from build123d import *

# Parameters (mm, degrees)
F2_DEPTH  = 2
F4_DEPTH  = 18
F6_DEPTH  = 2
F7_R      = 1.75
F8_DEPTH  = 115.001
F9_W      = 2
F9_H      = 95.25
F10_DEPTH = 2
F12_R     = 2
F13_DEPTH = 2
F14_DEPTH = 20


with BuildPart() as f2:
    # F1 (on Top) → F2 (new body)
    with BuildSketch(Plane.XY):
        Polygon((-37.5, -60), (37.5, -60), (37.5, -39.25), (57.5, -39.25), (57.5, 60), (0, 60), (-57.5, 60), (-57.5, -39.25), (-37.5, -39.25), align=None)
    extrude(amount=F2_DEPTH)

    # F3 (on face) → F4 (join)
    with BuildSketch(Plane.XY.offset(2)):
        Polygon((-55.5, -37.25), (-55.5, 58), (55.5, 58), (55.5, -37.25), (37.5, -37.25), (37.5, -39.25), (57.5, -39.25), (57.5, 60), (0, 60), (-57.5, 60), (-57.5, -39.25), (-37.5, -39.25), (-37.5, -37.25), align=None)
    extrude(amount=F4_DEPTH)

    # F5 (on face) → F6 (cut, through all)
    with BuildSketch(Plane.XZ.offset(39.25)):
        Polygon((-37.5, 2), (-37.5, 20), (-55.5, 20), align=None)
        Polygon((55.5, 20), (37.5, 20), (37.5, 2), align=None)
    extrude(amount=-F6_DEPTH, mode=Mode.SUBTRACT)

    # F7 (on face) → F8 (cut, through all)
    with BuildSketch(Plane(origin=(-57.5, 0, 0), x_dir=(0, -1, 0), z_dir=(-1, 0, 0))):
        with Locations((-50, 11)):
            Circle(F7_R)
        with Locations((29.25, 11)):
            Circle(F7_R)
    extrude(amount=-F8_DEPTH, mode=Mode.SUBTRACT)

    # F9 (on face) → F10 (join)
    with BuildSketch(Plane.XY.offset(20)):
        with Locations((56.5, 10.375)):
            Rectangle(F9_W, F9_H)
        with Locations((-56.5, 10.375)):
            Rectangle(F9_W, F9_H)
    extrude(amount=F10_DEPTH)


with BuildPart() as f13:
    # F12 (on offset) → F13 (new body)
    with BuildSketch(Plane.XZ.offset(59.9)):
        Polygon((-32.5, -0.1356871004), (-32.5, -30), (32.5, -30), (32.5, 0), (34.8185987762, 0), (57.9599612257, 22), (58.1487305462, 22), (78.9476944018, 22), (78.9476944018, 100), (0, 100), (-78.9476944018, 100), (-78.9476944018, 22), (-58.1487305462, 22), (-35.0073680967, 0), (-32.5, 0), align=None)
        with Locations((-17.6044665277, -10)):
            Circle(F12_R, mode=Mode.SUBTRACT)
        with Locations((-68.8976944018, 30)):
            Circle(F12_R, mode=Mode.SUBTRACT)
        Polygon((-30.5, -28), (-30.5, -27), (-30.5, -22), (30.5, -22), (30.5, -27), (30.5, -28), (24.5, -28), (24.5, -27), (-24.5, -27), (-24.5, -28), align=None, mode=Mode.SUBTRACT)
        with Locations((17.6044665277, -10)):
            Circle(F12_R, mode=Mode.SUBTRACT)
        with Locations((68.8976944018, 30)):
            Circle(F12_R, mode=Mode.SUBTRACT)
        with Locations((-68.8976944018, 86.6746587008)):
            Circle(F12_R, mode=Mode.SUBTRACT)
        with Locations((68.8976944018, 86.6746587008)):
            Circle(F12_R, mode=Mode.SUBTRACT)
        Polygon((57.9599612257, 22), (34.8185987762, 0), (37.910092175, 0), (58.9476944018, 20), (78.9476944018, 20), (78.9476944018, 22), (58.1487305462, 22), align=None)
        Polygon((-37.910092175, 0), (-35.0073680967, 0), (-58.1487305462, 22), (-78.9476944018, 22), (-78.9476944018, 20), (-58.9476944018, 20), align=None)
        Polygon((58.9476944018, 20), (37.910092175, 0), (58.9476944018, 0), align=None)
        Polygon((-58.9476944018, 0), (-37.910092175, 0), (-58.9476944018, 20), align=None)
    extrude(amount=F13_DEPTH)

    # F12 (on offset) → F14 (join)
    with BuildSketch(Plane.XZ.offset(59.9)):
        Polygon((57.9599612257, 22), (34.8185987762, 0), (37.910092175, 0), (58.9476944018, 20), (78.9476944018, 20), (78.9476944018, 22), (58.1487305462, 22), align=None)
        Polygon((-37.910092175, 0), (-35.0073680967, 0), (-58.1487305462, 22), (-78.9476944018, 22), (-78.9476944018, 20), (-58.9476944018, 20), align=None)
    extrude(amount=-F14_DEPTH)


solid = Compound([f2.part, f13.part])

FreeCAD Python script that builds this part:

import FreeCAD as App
import Part
import Sketcher
from FreeCAD import Vector
Q = App.Units.Quantity

doc = App.newDocument("Part")
params = doc.addObject("Spreadsheet::Sheet", "Params")
for row, (alias, value) in enumerate([
    ("sketch1_width", "75 mm"),
    ("sketch1_width2", "20 mm"),
    ("sketch1_height", "20.75 mm"),
    ("pad1_length", "2 mm"),
    ("sketch2_width", "111 mm"),
    ("sketch2_width2", "18 mm"),
    ("sketch2_width3", "20 mm"),
    ("sketch2_height", "2 mm"),
    ("sketch2_height2", "95.25 mm"),
    ("pad2_length", "18 mm"),
    ("sketch3_width", "18 mm"),
    ("pocket1_length", "2 mm"),
    ("sketch4_diameter", "3.5 mm"),
    ("sketch5_width", "2 mm"),
    ("sketch5_height", "95.25 mm"),
    ("pad3_length", "2 mm"),
    ("sketch6_diameter", "4 mm"),
    ("sketch6_width", "65 mm"),
    ("sketch6_width2", "20 mm"),
    ("sketch6_width3", "6 mm"),
    ("sketch6_width4", "61 mm"),
    ("pad4_length", "2 mm"),
    ("sketch7_width", "20 mm"),
    ("sketch7_height", "2 mm"),
    ("pad5_length", "20 mm"),
], start=1):
    params.set(f"A{row}", alias)
    params.set(f"B{row}", "=" + value)
    params.setAlias(f"B{row}", alias)

body = doc.addObject("PartDesign::Body", "Body")

# Sketch on XY plane
sketch1 = body.newObject("Sketcher::SketchObject", "Sketch")
sketch1.AttachmentSupport = (doc.getObject("XY_Plane"), [""])
sketch1.MapMode = "FlatFace"
sketch1.addGeometry([
    Part.LineSegment(Vector(-38, -60, 0), Vector(38, -60, 0)),  # 0
    Part.LineSegment(Vector(38, -60, 0), Vector(38, -39, 0)),  # 1
    Part.LineSegment(Vector(38, -39, 0), Vector(58, -39, 0)),  # 2
    Part.LineSegment(Vector(58, -39, 0), Vector(58, 60, 0)),  # 3
    Part.LineSegment(Vector(58, 60, 0), Vector(-58, 60, 0)),  # 4
    Part.LineSegment(Vector(-58, 60, 0), Vector(-58, -39, 0)),  # 5
    Part.LineSegment(Vector(-58, -39, 0), Vector(-38, -39, 0)),  # 6
    Part.LineSegment(Vector(-38, -39, 0), Vector(-38, -60, 0)),  # 7
], False)
sketch1.addConstraint([
    Sketcher.Constraint("Coincident", 0, 2, 1, 1),
    Sketcher.Constraint("Coincident", 1, 2, 2, 1),
    Sketcher.Constraint("Coincident", 2, 2, 3, 1),
    Sketcher.Constraint("Coincident", 3, 2, 4, 1),
    Sketcher.Constraint("Coincident", 4, 2, 5, 1),
    Sketcher.Constraint("Coincident", 5, 2, 6, 1),
    Sketcher.Constraint("Coincident", 6, 2, 7, 1),
    Sketcher.Constraint("Coincident", 7, 2, 0, 1),
    Sketcher.Constraint("Horizontal", 0),
    Sketcher.Constraint("Vertical", 1),
    Sketcher.Constraint("Horizontal", 2),
    Sketcher.Constraint("Vertical", 3),
    Sketcher.Constraint("Horizontal", 4),
    Sketcher.Constraint("Vertical", 5),
    Sketcher.Constraint("Horizontal", 6),
    Sketcher.Constraint("Vertical", 7),
    Sketcher.Constraint("Symmetric", 2, 2, 5, 2, -2),
    Sketcher.Constraint("Equal", 2, 6),
    Sketcher.Constraint("DistanceX", 0, 1, 0, 2, Q("75 mm")),
    Sketcher.Constraint("DistanceX", 2, 1, 2, 2, Q("20 mm")),
    Sketcher.Constraint("DistanceY", 0, 2, -1, 1, Q("60 mm")),
    Sketcher.Constraint("DistanceY", -1, 1, 3, 2, Q("60 mm")),
    Sketcher.Constraint("DistanceY", 1, 1, 1, 2, Q("20.75 mm")),
])
sketch1.setExpression("Constraints[18]", "Params.sketch1_width")
sketch1.setExpression("Constraints[19]", "Params.sketch1_width2")
sketch1.setExpression("Constraints[22]", "Params.sketch1_height")
pad1 = body.newObject("PartDesign::Pad", "Pad")
pad1.Profile = sketch1
pad1.setExpression("Length", "Params.pad1_length")

# Sketch on XY plane
sketch2 = body.newObject("Sketcher::SketchObject", "Sketch001")
sketch2.AttachmentSupport = (doc.getObject("XY_Plane"), [""])
sketch2.MapMode = "FlatFace"
sketch2.AttachmentOffset = App.Placement(Vector(0, 0, 2), App.Rotation())
sketch2.addGeometry([
    Part.LineSegment(Vector(-55.5, -37.2, 0), Vector(-55.5, 58, 0)),  # 0
    Part.LineSegment(Vector(-55.5, 58, 0), Vector(55.5, 58, 0)),  # 1
    Part.LineSegment(Vector(55.5, 58, 0), Vector(55.5, -37.2, 0)),  # 2
    Part.LineSegment(Vector(55.5, -37.2, 0), Vector(37.5, -37.2, 0)),  # 3
    Part.LineSegment(Vector(37.5, -37.2, 0), Vector(37.5, -39.2, 0)),  # 4
    Part.LineSegment(Vector(37.5, -39.2, 0), Vector(57.5, -39.2, 0)),  # 5
    Part.LineSegment(Vector(57.5, -39.2, 0), Vector(57.5, 60, 0)),  # 6
    Part.LineSegment(Vector(57.5, 60, 0), Vector(-57.5, 60, 0)),  # 7
    Part.LineSegment(Vector(-57.5, 60, 0), Vector(-57.5, -39.2, 0)),  # 8
    Part.LineSegment(Vector(-57.5, -39.2, 0), Vector(-37.5, -39.2, 0)),  # 9
    Part.LineSegment(Vector(-37.5, -39.2, 0), Vector(-37.5, -37.2, 0)),  # 10
    Part.LineSegment(Vector(-37.5, -37.2, 0), Vector(-55.5, -37.2, 0)),  # 11
], False)
sketch2.addConstraint([
    Sketcher.Constraint("Coincident", 0, 2, 1, 1),
    Sketcher.Constraint("Coincident", 1, 2, 2, 1),
    Sketcher.Constraint("Coincident", 2, 2, 3, 1),
    Sketcher.Constraint("Coincident", 3, 2, 4, 1),
    Sketcher.Constraint("Coincident", 4, 2, 5, 1),
    Sketcher.Constraint("Coincident", 5, 2, 6, 1),
    Sketcher.Constraint("Coincident", 6, 2, 7, 1),
    Sketcher.Constraint("Coincident", 7, 2, 8, 1),
    Sketcher.Constraint("Coincident", 8, 2, 9, 1),
    Sketcher.Constraint("Coincident", 9, 2, 10, 1),
    Sketcher.Constraint("Coincident", 10, 2, 11, 1),
    Sketcher.Constraint("Coincident", 11, 2, 0, 1),
    Sketcher.Constraint("Vertical", 0),
    Sketcher.Constraint("Horizontal", 1),
    Sketcher.Constraint("Vertical", 2),
    Sketcher.Constraint("Horizontal", 3),
    Sketcher.Constraint("Vertical", 4),
    Sketcher.Constraint("Horizontal", 5),
    Sketcher.Constraint("Vertical", 6),
    Sketcher.Constraint("Horizontal", 7),
    Sketcher.Constraint("Vertical", 8),
    Sketcher.Constraint("Horizontal", 9),
    Sketcher.Constraint("Vertical", 10),
    Sketcher.Constraint("Horizontal", 11),
    Sketcher.Constraint("Symmetric", 5, 2, 8, 2, -2),
    Sketcher.Constraint("Symmetric", 3, 2, 10, 2, -2),
    Sketcher.Constraint("Equal", 3, 11),
    Sketcher.Constraint("DistanceX", 1, 1, 1, 2, Q("111 mm")),
    Sketcher.Constraint("DistanceX", 3, 2, 3, 1, Q("18 mm")),
    Sketcher.Constraint("DistanceX", 5, 1, 5, 2, Q("20 mm")),
    Sketcher.Constraint("DistanceY", 4, 2, 4, 1, Q("2 mm")),
    Sketcher.Constraint("DistanceY", -1, 1, 0, 2, Q("58 mm")),
    Sketcher.Constraint("DistanceY", -1, 1, 6, 2, Q("60 mm")),
    Sketcher.Constraint("DistanceY", 0, 1, 0, 2, Q("95.25 mm")),
])
sketch2.setExpression("Constraints[27]", "Params.sketch2_width")
sketch2.setExpression("Constraints[28]", "Params.sketch2_width2")
sketch2.setExpression("Constraints[29]", "Params.sketch2_width3")
sketch2.setExpression("Constraints[30]", "Params.sketch2_height")
sketch2.setExpression("Constraints[33]", "Params.sketch2_height2")
pad2 = body.newObject("PartDesign::Pad", "Pad001")
pad2.Profile = sketch2
pad2.setExpression("Length", "Params.pad2_length")

# Sketch on XZ plane
sketch3 = body.newObject("Sketcher::SketchObject", "Sketch002")
sketch3.AttachmentSupport = (doc.getObject("XZ_Plane"), [""])
sketch3.MapMode = "FlatFace"
sketch3.AttachmentOffset = App.Placement(Vector(0, 0, 39.25), App.Rotation())
sketch3.addGeometry([
    Part.LineSegment(Vector(-38, 2, 0), Vector(-38, 20, 0)),  # 0
    Part.LineSegment(Vector(-38, 20, 0), Vector(-56, 20, 0)),  # 1
    Part.LineSegment(Vector(-56, 20, 0), Vector(-38, 2, 0)),  # 2
    Part.LineSegment(Vector(56, 20, 0), Vector(38, 20, 0)),  # 3
    Part.LineSegment(Vector(38, 20, 0), Vector(38, 2, 0)),  # 4
    Part.LineSegment(Vector(38, 2, 0), Vector(56, 20, 0)),  # 5
], False)
sketch3.addConstraint([
    Sketcher.Constraint("Coincident", 0, 2, 1, 1),
    Sketcher.Constraint("Coincident", 1, 2, 2, 1),
    Sketcher.Constraint("Coincident", 2, 2, 0, 1),
    Sketcher.Constraint("Coincident", 3, 2, 4, 1),
    Sketcher.Constraint("Coincident", 4, 2, 5, 1),
    Sketcher.Constraint("Coincident", 5, 2, 3, 1),
    Sketcher.Constraint("Vertical", 0),
    Sketcher.Constraint("Horizontal", 1),
    Sketcher.Constraint("Horizontal", 3),
    Sketcher.Constraint("Vertical", 4),
    Sketcher.Constraint("Symmetric", 0, 2, 3, 2, -2),
    Sketcher.Constraint("Perpendicular", 2, 5),
    Sketcher.Constraint("Horizontal", 2, 2, 4, 2),
    Sketcher.Constraint("Equal", 1, 3),
    Sketcher.Constraint("DistanceX", 1, 2, 1, 1, Q("18 mm")),
    Sketcher.Constraint("DistanceY", -1, 1, 0, 2, Q("20 mm")),
    Sketcher.Constraint("DistanceX", 0, 2, 3, 2, Q("75 mm")),
])
sketch3.setExpression("Constraints[14]", "Params.sketch3_width")
pocket1 = body.newObject("PartDesign::Pocket", "Pocket")
pocket1.Profile = sketch3
pocket1.setExpression("Length", "Params.pocket1_length")

# Sketch on YZ plane
sketch4 = body.newObject("Sketcher::SketchObject", "Sketch003")
sketch4.AttachmentSupport = (doc.getObject("YZ_Plane"), [""])
sketch4.MapMode = "FlatFace"
sketch4.AttachmentOffset = App.Placement(Vector(0, 0, -57.5), App.Rotation())
sketch4.addGeometry([
    Part.Circle(Vector(50, 11, 0), Vector(0, 0, 1), 1.8),
    Part.Circle(Vector(-29.2, 11, 0), Vector(0, 0, 1), 1.8),
], False)
sketch4.addConstraint([
    Sketcher.Constraint("Equal", 0, 1),
    Sketcher.Constraint("Horizontal", 0, 3, 1, 3),
    Sketcher.Constraint("Diameter", 0, Q("3.5 mm")),
    Sketcher.Constraint("DistanceX", -1, 1, 0, 3, Q("50 mm")),
    Sketcher.Constraint("DistanceY", -1, 1, 0, 3, Q("11 mm")),
    Sketcher.Constraint("DistanceX", 1, 3, -1, 1, Q("29.25 mm")),
])
sketch4.setExpression("Constraints[2]", "Params.sketch4_diameter")
pocket2 = body.newObject("PartDesign::Pocket", "Pocket001")
pocket2.Profile = sketch4
pocket2.Type = "ThroughAll"
pocket2.Reversed = True

# Sketch on XY plane
sketch5 = body.newObject("Sketcher::SketchObject", "Sketch004")
sketch5.AttachmentSupport = (doc.getObject("XY_Plane"), [""])
sketch5.MapMode = "FlatFace"
sketch5.AttachmentOffset = App.Placement(Vector(0, 0, 20), App.Rotation())
sketch5.addGeometry([
    Part.LineSegment(Vector(55.5, 58, 0), Vector(55.5, -37.2, 0)),  # 0
    Part.LineSegment(Vector(55.5, -37.2, 0), Vector(57.5, -37.2, 0)),  # 1
    Part.LineSegment(Vector(57.5, -37.2, 0), Vector(57.5, 58, 0)),  # 2
    Part.LineSegment(Vector(57.5, 58, 0), Vector(55.5, 58, 0)),  # 3
    Part.LineSegment(Vector(-57.5, 58, 0), Vector(-57.5, -37.2, 0)),  # 4
    Part.LineSegment(Vector(-57.5, -37.2, 0), Vector(-55.5, -37.2, 0)),  # 5
    Part.LineSegment(Vector(-55.5, -37.2, 0), Vector(-55.5, 58, 0)),  # 6
    Part.LineSegment(Vector(-55.5, 58, 0), Vector(-57.5, 58, 0)),  # 7
], False)
sketch5.addConstraint([
    Sketcher.Constraint("Coincident", 0, 2, 1, 1),
    Sketcher.Constraint("Coincident", 1, 2, 2, 1),
    Sketcher.Constraint("Coincident", 2, 2, 3, 1),
    Sketcher.Constraint("Coincident", 3, 2, 0, 1),
    Sketcher.Constraint("Coincident", 4, 2, 5, 1),
    Sketcher.Constraint("Coincident", 5, 2, 6, 1),
    Sketcher.Constraint("Coincident", 6, 2, 7, 1),
    Sketcher.Constraint("Coincident", 7, 2, 4, 1),
    Sketcher.Constraint("Vertical", 0),
    Sketcher.Constraint("Horizontal", 1),
    Sketcher.Constraint("Vertical", 2),
    Sketcher.Constraint("Horizontal", 3),
    Sketcher.Constraint("Vertical", 4),
    Sketcher.Constraint("Horizontal", 5),
    Sketcher.Constraint("Vertical", 6),
    Sketcher.Constraint("Horizontal", 7),
    Sketcher.Constraint("Symmetric", 1, 2, 4, 2, -2),
    Sketcher.Constraint("Symmetric", 3, 2, 6, 2, -2),
    Sketcher.Constraint("DistanceX", 1, 1, 1, 2, Q("2 mm")),
    Sketcher.Constraint("DistanceY", -1, 1, 2, 2, Q("58 mm")),
    Sketcher.Constraint("DistanceX", 4, 2, 0, 2, Q("113 mm")),
    Sketcher.Constraint("DistanceY", 0, 2, 0, 1, Q("95.25 mm")),
])
sketch5.setExpression("Constraints[18]", "Params.sketch5_width")
sketch5.setExpression("Constraints[21]", "Params.sketch5_height")
pad3 = body.newObject("PartDesign::Pad", "Pad002")
pad3.Profile = sketch5
pad3.setExpression("Length", "Params.pad3_length")
body2 = doc.addObject("PartDesign::Body", "Body001")

# Sketch on XZ plane
sketch6 = body2.newObject("Sketcher::SketchObject", "Sketch005")
sketch6.AttachmentSupport = (doc.getObject("XZ_Plane001"), [""])
sketch6.MapMode = "FlatFace"
sketch6.AttachmentOffset = App.Placement(Vector(0, 0, 59.9), App.Rotation())
sketch6.addGeometry([
    Part.LineSegment(Vector(-32.5, -30, 0), Vector(32.5, -30, 0)),  # 0
    Part.LineSegment(Vector(32.5, -30, 0), Vector(32.5, 0, 0)),  # 1
    Part.LineSegment(Vector(32.5, 0, 0), Vector(58.9, 0, 0)),  # 2
    Part.LineSegment(Vector(58.9, 0, 0), Vector(58.9, 20, 0)),  # 3
    Part.LineSegment(Vector(58.9, 20, 0), Vector(78.9, 20, 0)),  # 4
    Part.LineSegment(Vector(78.9, 20, 0), Vector(78.9, 100, 0)),  # 5
    Part.LineSegment(Vector(78.9, 100, 0), Vector(-78.9, 100, 0)),  # 6
    Part.LineSegment(Vector(-78.9, 100, 0), Vector(-78.9, 20, 0)),  # 7
    Part.LineSegment(Vector(-78.9, 20, 0), Vector(-58.9, 20, 0)),  # 8
    Part.LineSegment(Vector(-58.9, 20, 0), Vector(-58.9, 0, 0)),  # 9
    Part.LineSegment(Vector(-58.9, 0, 0), Vector(-32.5, 0, 0)),  # 10
    Part.LineSegment(Vector(-32.5, 0, 0), Vector(-32.5, -30, 0)),  # 11
    Part.Circle(Vector(-17.6, -10, 0), Vector(0, 0, 1), 2),  # 12
    Part.Circle(Vector(-68.9, 30, 0), Vector(0, 0, 1), 2),  # 13
    Part.LineSegment(Vector(-24.5, -28, 0), Vector(-30.5, -28, 0)),  # 14
    Part.LineSegment(Vector(-30.5, -28, 0), Vector(-30.5, -22, 0)),  # 15
    Part.LineSegment(Vector(-30.5, -22, 0), Vector(30.5, -22, 0)),  # 16
    Part.LineSegment(Vector(30.5, -22, 0), Vector(30.5, -28, 0)),  # 17
    Part.LineSegment(Vector(30.5, -28, 0), Vector(24.5, -28, 0)),  # 18
    Part.LineSegment(Vector(24.5, -28, 0), Vector(24.5, -27, 0)),  # 19
    Part.LineSegment(Vector(24.5, -27, 0), Vector(-24.5, -27, 0)),  # 20
    Part.LineSegment(Vector(-24.5, -27, 0), Vector(-24.5, -28, 0)),  # 21
    Part.Circle(Vector(17.6, -10, 0), Vector(0, 0, 1), 2),  # 22
    Part.Circle(Vector(68.9, 30, 0), Vector(0, 0, 1), 2),  # 23
    Part.Circle(Vector(-68.9, 86.7, 0), Vector(0, 0, 1), 2),  # 24
    Part.Circle(Vector(68.9, 86.7, 0), Vector(0, 0, 1), 2),  # 25
], False)
sketch6.addConstraint([
    Sketcher.Constraint("Coincident", 0, 2, 1, 1),
    Sketcher.Constraint("Coincident", 1, 2, 2, 1),
    Sketcher.Constraint("Coincident", 2, 2, 3, 1),
    Sketcher.Constraint("Coincident", 3, 2, 4, 1),
    Sketcher.Constraint("Coincident", 4, 2, 5, 1),
    Sketcher.Constraint("Coincident", 5, 2, 6, 1),
    Sketcher.Constraint("Coincident", 6, 2, 7, 1),
    Sketcher.Constraint("Coincident", 7, 2, 8, 1),
    Sketcher.Constraint("Coincident", 8, 2, 9, 1),
    Sketcher.Constraint("Coincident", 9, 2, 10, 1),
    Sketcher.Constraint("Coincident", 10, 2, 11, 1),
    Sketcher.Constraint("Coincident", 11, 2, 0, 1),
    Sketcher.Constraint("Coincident", 14, 2, 15, 1),
    Sketcher.Constraint("Coincident", 15, 2, 16, 1),
    Sketcher.Constraint("Coincident", 16, 2, 17, 1),
    Sketcher.Constraint("Coincident", 17, 2, 18, 1),
    Sketcher.Constraint("Coincident", 18, 2, 19, 1),
    Sketcher.Constraint("Coincident", 19, 2, 20, 1),
    Sketcher.Constraint("Coincident", 20, 2, 21, 1),
    Sketcher.Constraint("Coincident", 21, 2, 14, 1),
    Sketcher.Constraint("Horizontal", 0),
    Sketcher.Constraint("Vertical", 1),
    Sketcher.Constraint("Horizontal", 2),
    Sketcher.Constraint("Vertical", 3),
    Sketcher.Constraint("Horizontal", 4),
    Sketcher.Constraint("Vertical", 5),
    Sketcher.Constraint("Horizontal", 6),
    Sketcher.Constraint("Vertical", 7),
    Sketcher.Constraint("Horizontal", 8),
    Sketcher.Constraint("Vertical", 9),
    Sketcher.Constraint("Horizontal", 10),
    Sketcher.Constraint("Vertical", 11),
    Sketcher.Constraint("Horizontal", 14),
    Sketcher.Constraint("Vertical", 15),
    Sketcher.Constraint("Horizontal", 16),
    Sketcher.Constraint("Vertical", 17),
    Sketcher.Constraint("Horizontal", 18),
    Sketcher.Constraint("Vertical", 19),
    Sketcher.Constraint("Horizontal", 20),
    Sketcher.Constraint("Vertical", 21),
    Sketcher.Constraint("Equal", 12, 13),
    Sketcher.Constraint("Equal", 13, 22),
    Sketcher.Constraint("Equal", 22, 23),
    Sketcher.Constraint("Equal", 23, 24),
    Sketcher.Constraint("Equal", 24, 25),
    Sketcher.Constraint("Symmetric", 2, 2, 9, 2, -1, 1),
    Sketcher.Constraint("Symmetric", 12, 3, 22, 3, -2),
    Sketcher.Constraint("Symmetric", 13, 3, 23, 3, -2),
    Sketcher.Constraint("Symmetric", 24, 3, 25, 3, -2),
    Sketcher.Constraint("Symmetric", 4, 2, 7, 2, -2),
    Sketcher.Constraint("Symmetric", 1, 2, 10, 2, -2),
    Sketcher.Constraint("Symmetric", 14, 2, 17, 2, -2),
    Sketcher.Constraint("Vertical", 13, 3, 24, 3),
    Sketcher.Constraint("Equal", 14, 18),
    Sketcher.Constraint("Equal", 8, 3),
    Sketcher.Constraint("Equal", 18, 15),
    Sketcher.Constraint("Diameter", 12, Q("4 mm")),
    Sketcher.Constraint("DistanceX", 0, 1, 0, 2, Q("65 mm")),
    Sketcher.Constraint("DistanceX", 4, 1, 4, 2, Q("20 mm")),
    Sketcher.Constraint("DistanceX", 14, 2, 14, 1, Q("6 mm")),
    Sketcher.Constraint("DistanceX", 16, 1, 16, 2, Q("61 mm")),
    Sketcher.Constraint("DistanceY", 1, 1, 1, 2, Q("30 mm")),
    Sketcher.Constraint("DistanceY", 5, 1, 5, 2, Q("80 mm")),
    Sketcher.Constraint("DistanceY", 19, 1, 19, 2, Q("1 mm")),
    Sketcher.Constraint("DistanceY", 12, 3, -1, 1, Q("10 mm")),
    Sketcher.Constraint("DistanceY", -1, 1, 13, 3, Q("30 mm")),
    Sketcher.Constraint("DistanceY", 14, 2, -1, 1, Q("28 mm")),
    Sketcher.Constraint("DistanceX", 2, 2, 23, 3, Q("9.95 mm")),
    Sketcher.Constraint("DistanceX", 6, 2, 6, 1, Q("157.895389 mm")),
    Sketcher.Constraint("DistanceY", -1, 1, 24, 3, Q("86.674659 mm")),
    Sketcher.Constraint("DistanceX", 13, 3, 22, 3, Q("86.502161 mm")),
])
sketch6.setExpression("Constraints[56]", "Params.sketch6_diameter")
sketch6.setExpression("Constraints[57]", "Params.sketch6_width")
sketch6.setExpression("Constraints[58]", "Params.sketch6_width2")
sketch6.setExpression("Constraints[59]", "Params.sketch6_width3")
sketch6.setExpression("Constraints[60]", "Params.sketch6_width4")
pad4 = body2.newObject("PartDesign::Pad", "Pad003")
pad4.Profile = sketch6
pad4.setExpression("Length", "Params.pad4_length")

# Sketch on XZ plane
sketch7 = body2.newObject("Sketcher::SketchObject", "Sketch006")
sketch7.AttachmentSupport = (doc.getObject("XZ_Plane001"), [""])
sketch7.MapMode = "FlatFace"
sketch7.AttachmentOffset = App.Placement(Vector(0, 0, 59.9), App.Rotation())
sketch7.addGeometry([
    Part.LineSegment(Vector(58, 22, 0), Vector(34.8, 0, 0)),  # 0
    Part.LineSegment(Vector(34.8, 0, 0), Vector(37.9, 0, 0)),  # 1
    Part.LineSegment(Vector(37.9, 0, 0), Vector(58.9, 20, 0)),  # 2
    Part.LineSegment(Vector(58.9, 20, 0), Vector(78.9, 20, 0)),  # 3
    Part.LineSegment(Vector(78.9, 20, 0), Vector(78.9, 22, 0)),  # 4
    Part.LineSegment(Vector(78.9, 22, 0), Vector(58, 22, 0)),  # 5
    Part.LineSegment(Vector(-37.9, 0, 0), Vector(-35, 0, 0)),  # 6
    Part.LineSegment(Vector(-35, 0, 0), Vector(-58.1, 22, 0)),  # 7
    Part.LineSegment(Vector(-58.1, 22, 0), Vector(-78.9, 22, 0)),  # 8
    Part.LineSegment(Vector(-78.9, 22, 0), Vector(-78.9, 20, 0)),  # 9
    Part.LineSegment(Vector(-78.9, 20, 0), Vector(-58.9, 20, 0)),  # 10
    Part.LineSegment(Vector(-58.9, 20, 0), Vector(-37.9, 0, 0)),  # 11
], False)
sketch7.addConstraint([
    Sketcher.Constraint("Coincident", 0, 2, 1, 1),
    Sketcher.Constraint("Coincident", 1, 2, 2, 1),
    Sketcher.Constraint("Coincident", 2, 2, 3, 1),
    Sketcher.Constraint("Coincident", 3, 2, 4, 1),
    Sketcher.Constraint("Coincident", 4, 2, 5, 1),
    Sketcher.Constraint("Coincident", 5, 2, 0, 1),
    Sketcher.Constraint("Coincident", 6, 2, 7, 1),
    Sketcher.Constraint("Coincident", 7, 2, 8, 1),
    Sketcher.Constraint("Coincident", 8, 2, 9, 1),
    Sketcher.Constraint("Coincident", 9, 2, 10, 1),
    Sketcher.Constraint("Coincident", 10, 2, 11, 1),
    Sketcher.Constraint("Coincident", 11, 2, 6, 1),
    Sketcher.Constraint("Horizontal", 1),
    Sketcher.Constraint("Horizontal", 3),
    Sketcher.Constraint("Vertical", 4),
    Sketcher.Constraint("Horizontal", 5),
    Sketcher.Constraint("Horizontal", 6),
    Sketcher.Constraint("Horizontal", 8),
    Sketcher.Constraint("Vertical", 9),
    Sketcher.Constraint("Horizontal", 10),
    Sketcher.Constraint("Symmetric", 1, 2, 11, 2, -1, 1),
    Sketcher.Constraint("Symmetric", 4, 2, 8, 2, -2),
    Sketcher.Constraint("Symmetric", 2, 2, 10, 2, -2),
    Sketcher.Constraint("PointOnObject", 0, 2, -1),
    Sketcher.Constraint("Parallel", 0, 2),
    Sketcher.Constraint("Parallel", 7, 11),
    Sketcher.Constraint("DistanceX", 3, 1, 3, 2, Q("20 mm")),
    Sketcher.Constraint("DistanceY", 4, 1, 4, 2, Q("2 mm")),
    Sketcher.Constraint("DistanceY", -1, 1, 2, 2, Q("20 mm")),
    Sketcher.Constraint("DistanceX", -1, 1, 0, 2, Q("34.818599 mm")),
    Sketcher.Constraint("Distance", 2, Q("29.027241 mm")),
    Sketcher.Constraint("DistanceX", 1, 1, 1, 2, Q("3.091493 mm")),
    Sketcher.Constraint("DistanceX", 6, 1, 6, 2, Q("2.902724 mm")),
])
sketch7.setExpression("Constraints[26]", "Params.sketch7_width")
sketch7.setExpression("Constraints[27]", "Params.sketch7_height")
pad5 = body2.newObject("PartDesign::Pad", "Pad004")
pad5.Profile = sketch7
pad5.setExpression("Length", "Params.pad5_length")
pad5.Reversed = True

doc.recompute()
